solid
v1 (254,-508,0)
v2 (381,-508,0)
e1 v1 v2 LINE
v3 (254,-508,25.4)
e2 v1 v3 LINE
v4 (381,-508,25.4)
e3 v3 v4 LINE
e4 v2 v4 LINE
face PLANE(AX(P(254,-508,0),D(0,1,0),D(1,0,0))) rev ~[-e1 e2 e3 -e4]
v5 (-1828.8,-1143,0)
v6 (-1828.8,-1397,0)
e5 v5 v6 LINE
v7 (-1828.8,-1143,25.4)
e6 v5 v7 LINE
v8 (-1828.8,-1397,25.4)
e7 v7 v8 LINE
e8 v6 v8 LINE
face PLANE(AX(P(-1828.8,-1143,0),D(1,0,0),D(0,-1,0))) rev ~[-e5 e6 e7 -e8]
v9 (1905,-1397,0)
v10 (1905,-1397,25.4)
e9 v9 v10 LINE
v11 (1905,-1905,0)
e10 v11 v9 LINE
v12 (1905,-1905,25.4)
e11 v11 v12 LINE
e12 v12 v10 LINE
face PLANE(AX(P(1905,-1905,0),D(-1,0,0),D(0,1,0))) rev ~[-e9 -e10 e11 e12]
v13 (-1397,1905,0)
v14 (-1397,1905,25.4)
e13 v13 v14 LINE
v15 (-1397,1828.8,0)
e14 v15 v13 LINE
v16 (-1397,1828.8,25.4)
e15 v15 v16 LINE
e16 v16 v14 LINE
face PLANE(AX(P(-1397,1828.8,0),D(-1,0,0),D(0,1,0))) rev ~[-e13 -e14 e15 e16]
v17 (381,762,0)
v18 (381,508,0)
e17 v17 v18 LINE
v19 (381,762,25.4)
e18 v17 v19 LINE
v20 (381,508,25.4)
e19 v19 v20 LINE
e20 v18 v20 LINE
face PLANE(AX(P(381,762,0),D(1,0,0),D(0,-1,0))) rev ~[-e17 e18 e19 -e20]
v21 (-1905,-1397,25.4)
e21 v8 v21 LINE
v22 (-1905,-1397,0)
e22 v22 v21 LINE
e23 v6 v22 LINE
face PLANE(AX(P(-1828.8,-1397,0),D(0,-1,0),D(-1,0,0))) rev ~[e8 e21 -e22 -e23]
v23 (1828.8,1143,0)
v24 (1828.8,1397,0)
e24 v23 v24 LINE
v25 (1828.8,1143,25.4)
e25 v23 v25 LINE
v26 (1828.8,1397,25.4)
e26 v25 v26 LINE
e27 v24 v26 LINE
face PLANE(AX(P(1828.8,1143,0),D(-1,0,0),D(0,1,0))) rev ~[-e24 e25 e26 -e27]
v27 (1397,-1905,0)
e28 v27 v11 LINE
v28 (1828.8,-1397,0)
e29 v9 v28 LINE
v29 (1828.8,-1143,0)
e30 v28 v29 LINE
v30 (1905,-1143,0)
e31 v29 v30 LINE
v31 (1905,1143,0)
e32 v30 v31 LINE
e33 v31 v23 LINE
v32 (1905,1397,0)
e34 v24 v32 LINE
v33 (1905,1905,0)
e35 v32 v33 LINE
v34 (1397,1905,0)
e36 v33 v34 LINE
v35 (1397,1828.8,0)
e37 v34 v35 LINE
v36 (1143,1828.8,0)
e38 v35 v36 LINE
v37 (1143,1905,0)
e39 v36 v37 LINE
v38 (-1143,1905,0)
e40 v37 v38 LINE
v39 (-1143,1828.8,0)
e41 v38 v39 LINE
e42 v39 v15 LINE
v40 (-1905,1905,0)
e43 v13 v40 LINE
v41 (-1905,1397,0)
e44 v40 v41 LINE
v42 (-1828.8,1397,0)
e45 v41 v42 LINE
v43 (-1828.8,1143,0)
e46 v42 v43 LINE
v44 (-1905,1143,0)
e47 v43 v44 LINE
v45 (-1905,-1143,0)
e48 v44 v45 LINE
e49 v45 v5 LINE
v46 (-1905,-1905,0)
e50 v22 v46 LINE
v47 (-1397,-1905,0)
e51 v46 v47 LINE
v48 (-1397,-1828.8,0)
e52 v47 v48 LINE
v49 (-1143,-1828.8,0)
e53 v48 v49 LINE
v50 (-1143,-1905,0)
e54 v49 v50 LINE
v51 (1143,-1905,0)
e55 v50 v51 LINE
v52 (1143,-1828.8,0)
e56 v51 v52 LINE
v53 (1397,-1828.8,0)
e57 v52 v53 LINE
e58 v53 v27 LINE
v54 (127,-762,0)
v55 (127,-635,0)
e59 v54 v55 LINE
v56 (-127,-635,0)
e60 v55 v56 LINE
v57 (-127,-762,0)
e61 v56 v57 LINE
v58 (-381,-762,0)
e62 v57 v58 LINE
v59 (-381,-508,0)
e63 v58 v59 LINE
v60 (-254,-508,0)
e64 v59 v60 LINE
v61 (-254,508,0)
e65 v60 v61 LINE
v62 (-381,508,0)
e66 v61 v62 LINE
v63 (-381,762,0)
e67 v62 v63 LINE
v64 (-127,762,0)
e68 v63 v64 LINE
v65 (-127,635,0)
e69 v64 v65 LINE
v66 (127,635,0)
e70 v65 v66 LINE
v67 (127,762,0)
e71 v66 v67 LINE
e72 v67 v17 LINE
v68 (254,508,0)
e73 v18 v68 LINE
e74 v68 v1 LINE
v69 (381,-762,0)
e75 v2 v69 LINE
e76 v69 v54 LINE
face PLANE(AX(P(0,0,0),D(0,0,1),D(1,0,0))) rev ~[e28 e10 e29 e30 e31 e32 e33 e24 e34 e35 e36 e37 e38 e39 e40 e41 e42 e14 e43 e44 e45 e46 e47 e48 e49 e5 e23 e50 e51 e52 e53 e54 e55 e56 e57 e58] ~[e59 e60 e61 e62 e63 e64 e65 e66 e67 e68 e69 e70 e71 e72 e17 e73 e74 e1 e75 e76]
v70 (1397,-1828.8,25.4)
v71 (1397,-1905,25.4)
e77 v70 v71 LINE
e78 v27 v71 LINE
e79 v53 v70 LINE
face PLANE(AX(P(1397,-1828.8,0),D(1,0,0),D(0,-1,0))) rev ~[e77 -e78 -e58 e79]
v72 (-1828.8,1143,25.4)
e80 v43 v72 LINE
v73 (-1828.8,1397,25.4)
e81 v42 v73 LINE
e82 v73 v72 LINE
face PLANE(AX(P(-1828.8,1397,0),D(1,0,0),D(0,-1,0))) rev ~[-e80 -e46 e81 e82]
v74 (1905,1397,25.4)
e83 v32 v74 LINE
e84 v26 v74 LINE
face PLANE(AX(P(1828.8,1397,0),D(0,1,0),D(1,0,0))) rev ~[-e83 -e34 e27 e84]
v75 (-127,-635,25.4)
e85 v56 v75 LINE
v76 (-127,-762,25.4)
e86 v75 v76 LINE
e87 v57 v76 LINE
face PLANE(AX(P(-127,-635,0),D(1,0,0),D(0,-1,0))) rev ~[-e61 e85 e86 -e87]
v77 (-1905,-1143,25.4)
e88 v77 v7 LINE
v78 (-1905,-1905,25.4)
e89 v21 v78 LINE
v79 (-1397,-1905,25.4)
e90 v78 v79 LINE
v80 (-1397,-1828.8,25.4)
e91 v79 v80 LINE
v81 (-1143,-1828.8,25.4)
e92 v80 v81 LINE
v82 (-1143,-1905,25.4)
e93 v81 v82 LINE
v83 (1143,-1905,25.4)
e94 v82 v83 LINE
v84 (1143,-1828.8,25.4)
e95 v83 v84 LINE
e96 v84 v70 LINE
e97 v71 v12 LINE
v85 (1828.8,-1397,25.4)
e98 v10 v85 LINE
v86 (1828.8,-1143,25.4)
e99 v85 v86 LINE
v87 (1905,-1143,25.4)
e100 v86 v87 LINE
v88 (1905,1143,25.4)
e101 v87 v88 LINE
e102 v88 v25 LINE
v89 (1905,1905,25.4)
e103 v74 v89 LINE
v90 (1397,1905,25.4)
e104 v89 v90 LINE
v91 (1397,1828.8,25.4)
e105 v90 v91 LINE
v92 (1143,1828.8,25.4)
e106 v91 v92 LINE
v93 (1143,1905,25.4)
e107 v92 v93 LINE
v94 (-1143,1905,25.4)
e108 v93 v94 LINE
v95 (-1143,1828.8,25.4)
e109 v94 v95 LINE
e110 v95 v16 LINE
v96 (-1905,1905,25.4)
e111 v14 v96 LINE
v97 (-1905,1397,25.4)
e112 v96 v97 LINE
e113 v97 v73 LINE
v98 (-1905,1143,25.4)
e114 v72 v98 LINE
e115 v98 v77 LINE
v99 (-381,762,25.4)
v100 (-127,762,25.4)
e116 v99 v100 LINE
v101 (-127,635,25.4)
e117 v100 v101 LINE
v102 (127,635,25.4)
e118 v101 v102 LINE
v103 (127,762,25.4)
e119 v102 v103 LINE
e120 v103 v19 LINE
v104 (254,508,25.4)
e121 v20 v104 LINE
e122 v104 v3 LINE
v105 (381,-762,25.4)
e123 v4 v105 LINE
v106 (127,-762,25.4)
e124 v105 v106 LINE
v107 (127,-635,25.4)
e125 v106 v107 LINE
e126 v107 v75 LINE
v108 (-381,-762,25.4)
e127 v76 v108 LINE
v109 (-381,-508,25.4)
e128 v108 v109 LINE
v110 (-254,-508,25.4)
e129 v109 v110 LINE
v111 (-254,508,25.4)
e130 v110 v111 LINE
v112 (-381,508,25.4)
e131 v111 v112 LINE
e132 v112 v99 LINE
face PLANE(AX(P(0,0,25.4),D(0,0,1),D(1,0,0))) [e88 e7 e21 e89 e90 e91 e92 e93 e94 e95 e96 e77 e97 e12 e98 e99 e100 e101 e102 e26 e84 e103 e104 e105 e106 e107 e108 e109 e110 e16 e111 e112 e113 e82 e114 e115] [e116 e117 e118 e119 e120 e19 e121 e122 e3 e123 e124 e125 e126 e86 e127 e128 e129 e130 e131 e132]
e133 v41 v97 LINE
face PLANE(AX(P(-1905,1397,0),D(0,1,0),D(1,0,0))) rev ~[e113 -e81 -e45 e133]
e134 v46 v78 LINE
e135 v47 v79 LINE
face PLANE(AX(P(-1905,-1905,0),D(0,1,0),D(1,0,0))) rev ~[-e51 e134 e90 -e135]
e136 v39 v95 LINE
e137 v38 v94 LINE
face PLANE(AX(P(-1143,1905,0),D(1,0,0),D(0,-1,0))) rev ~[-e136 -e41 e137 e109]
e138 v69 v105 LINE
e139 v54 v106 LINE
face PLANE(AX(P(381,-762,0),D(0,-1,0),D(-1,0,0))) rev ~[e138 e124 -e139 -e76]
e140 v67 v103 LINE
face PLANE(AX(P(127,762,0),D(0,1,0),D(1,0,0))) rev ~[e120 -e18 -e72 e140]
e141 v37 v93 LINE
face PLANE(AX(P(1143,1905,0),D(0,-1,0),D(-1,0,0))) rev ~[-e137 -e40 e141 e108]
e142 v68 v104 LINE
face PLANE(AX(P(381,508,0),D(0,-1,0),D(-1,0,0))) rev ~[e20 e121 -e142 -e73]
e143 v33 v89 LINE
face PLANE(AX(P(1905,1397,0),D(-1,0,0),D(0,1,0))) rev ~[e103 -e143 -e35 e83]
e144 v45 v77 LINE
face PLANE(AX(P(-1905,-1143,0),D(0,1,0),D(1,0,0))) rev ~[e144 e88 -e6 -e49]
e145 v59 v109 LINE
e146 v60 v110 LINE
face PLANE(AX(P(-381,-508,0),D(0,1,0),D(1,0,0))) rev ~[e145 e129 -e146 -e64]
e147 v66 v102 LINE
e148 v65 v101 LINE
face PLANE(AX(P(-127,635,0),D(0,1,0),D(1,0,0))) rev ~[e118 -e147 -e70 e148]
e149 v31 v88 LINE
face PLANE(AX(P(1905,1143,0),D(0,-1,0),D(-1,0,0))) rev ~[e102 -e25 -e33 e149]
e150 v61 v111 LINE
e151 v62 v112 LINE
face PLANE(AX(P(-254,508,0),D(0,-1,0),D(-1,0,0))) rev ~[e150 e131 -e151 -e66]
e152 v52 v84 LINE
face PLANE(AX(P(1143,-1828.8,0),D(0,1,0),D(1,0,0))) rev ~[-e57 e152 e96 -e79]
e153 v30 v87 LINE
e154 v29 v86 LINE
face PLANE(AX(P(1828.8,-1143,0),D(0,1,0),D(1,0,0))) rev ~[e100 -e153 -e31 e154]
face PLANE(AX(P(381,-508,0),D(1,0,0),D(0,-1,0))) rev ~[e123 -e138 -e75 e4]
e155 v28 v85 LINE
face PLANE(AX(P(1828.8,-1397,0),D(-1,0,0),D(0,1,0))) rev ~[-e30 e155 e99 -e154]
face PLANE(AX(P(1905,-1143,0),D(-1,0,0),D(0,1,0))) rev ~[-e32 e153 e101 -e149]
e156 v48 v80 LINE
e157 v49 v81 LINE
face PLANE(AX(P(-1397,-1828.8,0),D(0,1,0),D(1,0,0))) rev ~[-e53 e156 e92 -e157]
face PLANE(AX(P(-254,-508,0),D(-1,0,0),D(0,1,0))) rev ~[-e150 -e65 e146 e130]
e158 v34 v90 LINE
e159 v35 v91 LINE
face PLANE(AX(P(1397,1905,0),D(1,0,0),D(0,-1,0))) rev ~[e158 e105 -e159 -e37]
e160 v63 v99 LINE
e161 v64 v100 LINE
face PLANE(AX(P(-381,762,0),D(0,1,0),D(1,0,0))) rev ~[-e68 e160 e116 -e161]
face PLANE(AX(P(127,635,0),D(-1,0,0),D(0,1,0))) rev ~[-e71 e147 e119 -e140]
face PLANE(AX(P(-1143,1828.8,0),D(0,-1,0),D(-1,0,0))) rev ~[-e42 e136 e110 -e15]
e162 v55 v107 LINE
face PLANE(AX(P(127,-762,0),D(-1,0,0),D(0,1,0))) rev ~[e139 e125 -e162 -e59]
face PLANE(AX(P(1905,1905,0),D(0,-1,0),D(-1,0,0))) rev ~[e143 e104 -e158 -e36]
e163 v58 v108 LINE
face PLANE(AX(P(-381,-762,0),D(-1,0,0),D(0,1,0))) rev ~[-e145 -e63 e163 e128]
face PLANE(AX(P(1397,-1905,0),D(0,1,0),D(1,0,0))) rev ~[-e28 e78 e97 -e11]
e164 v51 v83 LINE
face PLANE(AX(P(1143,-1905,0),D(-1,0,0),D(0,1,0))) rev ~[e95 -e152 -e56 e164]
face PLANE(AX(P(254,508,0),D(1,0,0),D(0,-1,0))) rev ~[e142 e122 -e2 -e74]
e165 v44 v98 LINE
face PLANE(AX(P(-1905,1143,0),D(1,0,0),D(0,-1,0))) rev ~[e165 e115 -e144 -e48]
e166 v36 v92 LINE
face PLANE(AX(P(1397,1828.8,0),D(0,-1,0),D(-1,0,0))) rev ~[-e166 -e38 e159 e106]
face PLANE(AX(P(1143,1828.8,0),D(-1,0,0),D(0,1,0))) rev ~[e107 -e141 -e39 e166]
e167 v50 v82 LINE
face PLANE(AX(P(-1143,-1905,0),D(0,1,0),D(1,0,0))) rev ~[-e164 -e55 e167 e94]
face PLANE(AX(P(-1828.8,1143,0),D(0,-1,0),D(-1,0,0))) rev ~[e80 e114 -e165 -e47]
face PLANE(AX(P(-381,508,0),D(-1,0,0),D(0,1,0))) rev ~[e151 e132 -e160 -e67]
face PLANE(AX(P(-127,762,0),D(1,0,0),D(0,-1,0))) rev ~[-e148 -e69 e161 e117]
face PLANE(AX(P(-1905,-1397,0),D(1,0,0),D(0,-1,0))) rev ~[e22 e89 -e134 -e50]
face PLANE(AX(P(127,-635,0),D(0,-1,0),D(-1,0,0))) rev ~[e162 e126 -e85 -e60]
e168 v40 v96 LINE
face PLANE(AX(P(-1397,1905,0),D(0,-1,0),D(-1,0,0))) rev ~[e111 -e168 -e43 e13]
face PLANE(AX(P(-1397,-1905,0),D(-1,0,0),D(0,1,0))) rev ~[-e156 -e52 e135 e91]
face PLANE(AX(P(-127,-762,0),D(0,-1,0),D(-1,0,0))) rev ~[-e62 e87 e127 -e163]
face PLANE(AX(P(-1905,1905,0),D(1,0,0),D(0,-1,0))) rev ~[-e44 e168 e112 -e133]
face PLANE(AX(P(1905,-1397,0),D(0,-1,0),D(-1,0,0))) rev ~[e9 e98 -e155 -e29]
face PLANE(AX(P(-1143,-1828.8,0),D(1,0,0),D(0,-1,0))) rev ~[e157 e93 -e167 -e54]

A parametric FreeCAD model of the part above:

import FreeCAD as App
import Part
import Sketcher
Q = App.Units.Quantity


def add_polygon(sketch, points):
    """Adds a closed chain of lines whose ends are joined by coincident constraints."""
    first, n = sketch.GeometryCount, len(points)
    for a, b in zip(points, points[1:] + points[:1]):
        sketch.addGeometry(Part.LineSegment(App.Vector(*a, 0), App.Vector(*b, 0)), False)
    for i in range(n):
        sketch.addConstraint(Sketcher.Constraint("Coincident", first + i, 2, first + (i + 1) % n, 1))

doc = App.newDocument("Part")
body = doc.addObject("PartDesign::Body", "Body")

# Sketch on XY plane
sketch1 = doc.addObject("Sketcher::SketchObject", "Sketch")
body.addObject(sketch1)
sketch1.AttachmentSupport = (doc.XY_Plane, [""])
sketch1.MapMode = "FlatFace"
add_polygon(sketch1, [(1905, 1397), (1905, 1905), (1397, 1905), (1397, 1829), (1143, 1829), (1143, 1905), (-1143, 1905), (-1143, 1829), (-1397, 1829), (-1397, 1905), (-1905, 1905), (-1905, 1397), (-1829, 1397), (-1829, 1143), (-1905, 1143), (-1905, -1143), (-1829, -1143), (-1829, -1397), (-1905, -1397), (-1905, -1905), (-1397, -1905), (-1397, -1829), (-1143, -1829), (-1143, -1905), (1143, -1905), (1143, -1829), (1397, -1829), (1397, -1905), (1905, -1905), (1905, -1397), (1829, -1397), (1829, -1143), (1905, -1143), (1905, 1143), (1829, 1143), (1829, 1397)])  # lines 0-35
add_polygon(sketch1, [(-381, 508), (-381, 762), (-127, 762), (-127, 635), (127, 635), (127, 762), (381, 762), (381, 508), (254, 508), (254, -508), (381, -508), (381, -762), (127, -762), (127, -635), (-127, -635), (-127, -762), (-381, -762), (-381, -508), (-254, -508), (-254, 508)])  # lines 36-55
sketch1.addConstraint([
    Sketcher.Constraint("Vertical", 0),
    Sketcher.Constraint("Horizontal", 1),
    Sketcher.Constraint("Vertical", 2),
    Sketcher.Constraint("Horizontal", 3),
    Sketcher.Constraint("Vertical", 4),
    Sketcher.Constraint("Horizontal", 5),
    Sketcher.Constraint("Vertical", 6),
    Sketcher.Constraint("Horizontal", 7),
    Sketcher.Constraint("Vertical", 8),
    Sketcher.Constraint("Horizontal", 9),
    Sketcher.Constraint("Vertical", 10),
    Sketcher.Constraint("Horizontal", 11),
    Sketcher.Constraint("Vertical", 12),
    Sketcher.Constraint("Horizontal", 13),
    Sketcher.Constraint("Vertical", 14),
    Sketcher.Constraint("Horizontal", 15),
    Sketcher.Constraint("Vertical", 16),
    Sketcher.Constraint("Horizontal", 17),
    Sketcher.Constraint("Vertical", 18),
    Sketcher.Constraint("Horizontal", 19),
    Sketcher.Constraint("Vertical", 20),
    Sketcher.Constraint("Horizontal", 21),
    Sketcher.Constraint("Vertical", 22),
    Sketcher.Constraint("Horizontal", 23),
    Sketcher.Constraint("Vertical", 24),
    Sketcher.Constraint("Horizontal", 25),
    Sketcher.Constraint("Vertical", 26),
    Sketcher.Constraint("Horizontal", 27),
    Sketcher.Constraint("Vertical", 28),
    Sketcher.Constraint("Horizontal", 29),
    Sketcher.Constraint("Vertical", 30),
    Sketcher.Constraint("Horizontal", 31),
    Sketcher.Constraint("Vertical", 32),
    Sketcher.Constraint("Horizontal", 33),
    Sketcher.Constraint("Vertical", 34),
    Sketcher.Constraint("Horizontal", 35),
    Sketcher.Constraint("Vertical", 36),
    Sketcher.Constraint("Horizontal", 37),
    Sketcher.Constraint("Vertical", 38),
    Sketcher.Constraint("Horizontal", 39),
    Sketcher.Constraint("Vertical", 40),
    Sketcher.Constraint("Horizontal", 41),
    Sketcher.Constraint("Vertical", 42),
    Sketcher.Constraint("Horizontal", 43),
    Sketcher.Constraint("Vertical", 44),
    Sketcher.Constraint("Horizontal", 45),
    Sketcher.Constraint("Vertical", 46),
    Sketcher.Constraint("Horizontal", 47),
    Sketcher.Constraint("Vertical", 48),
    Sketcher.Constraint("Horizontal", 49),
    Sketcher.Constraint("Vertical", 50),
    Sketcher.Constraint("Horizontal", 51),
    Sketcher.Constraint("Vertical", 52),
    Sketcher.Constraint("Horizontal", 53),
    Sketcher.Constraint("Vertical", 54),
    Sketcher.Constraint("Horizontal", 55),
    Sketcher.Constraint("Symmetric", 0, 2, 18, 2, -1, 1),
    Sketcher.Constraint("Symmetric", 2, 2, 20, 2, -1, 1),
    Sketcher.Constraint("Symmetric", 4, 2, 22, 2, -1, 1),
    Sketcher.Constraint("Symmetric", 6, 2, 24, 2, -1, 1),
    Sketcher.Constraint("Symmetric", 8, 2, 26, 2, -1, 1),
    Sketcher.Constraint("Symmetric", 10, 2, 28, 2, -1, 1),
    Sketcher.Constraint("Symmetric", 12, 2, 30, 2, -1, 1),
    Sketcher.Constraint("Symmetric", 14, 2, 32, 2, -1, 1),
    Sketcher.Constraint("Symmetric", 16, 2, 34, 2, -1, 1),
    Sketcher.Constraint("Symmetric", 36, 2, 46, 2, -1, 1),
    Sketcher.Constraint("Symmetric", 38, 2, 48, 2, -1, 1),
    Sketcher.Constraint("Symmetric", 40, 2, 50, 2, -1, 1),
    Sketcher.Constraint("Symmetric", 42, 2, 52, 2, -1, 1),
    Sketcher.Constraint("Symmetric", 44, 2, 54, 2, -1, 1),
    Sketcher.Constraint("Symmetric", 3, 2, 6, 2, -2),
    Sketcher.Constraint("Symmetric", 1, 2, 8, 2, -2),
    Sketcher.Constraint("Symmetric", 17, 2, 28, 2, -2),
    Sketcher.Constraint("Symmetric", 15, 2, 30, 2, -2),
    Sketcher.Constraint("Symmetric", 37, 2, 40, 2, -2),
    Sketcher.Constraint("Symmetric", 45, 2, 52, 2, -2),
    Sketcher.Constraint("Horizontal", 1, 2, 4, 2),
    Sketcher.Constraint("Vertical", 10, 2, 13, 2),
    Sketcher.Constraint("Equal", 25, 37),
    Sketcher.Constraint("Equal", 37, 39),
    Sketcher.Constraint("Equal", 27, 0),
    Sketcher.Constraint("Equal", 35, 2),
    Sketcher.Constraint("Equal", 51, 12),
    Sketcher.Constraint("Equal", 23, 14),
    Sketcher.Constraint("Equal", 34, 36),
    Sketcher.Constraint("Equal", 55, 38),
    Sketcher.Constraint("DistanceX", 1, 2, 1, 1, Q("20 in")),
    Sketcher.Constraint("DistanceX", 3, 2, 3, 1, Q("10 in")),
    Sketcher.Constraint("DistanceX", 5, 2, 5, 1, Q("90 in")),
    Sketcher.Constraint("DistanceX", 11, 1, 11, 2, Q("3 in")),
    Sketcher.Constraint("DistanceX", 43, 2, 43, 1, Q("5 in")),
    Sketcher.Constraint("DistanceY", 44, 2, 44, 1, Q("40 in")),
])
pad1 = doc.addObject("PartDesign::Pad", "Pad")
body.addObject(pad1)
pad1.Profile = sketch1
pad1.Length = Q("1 in")

doc.recompute()
